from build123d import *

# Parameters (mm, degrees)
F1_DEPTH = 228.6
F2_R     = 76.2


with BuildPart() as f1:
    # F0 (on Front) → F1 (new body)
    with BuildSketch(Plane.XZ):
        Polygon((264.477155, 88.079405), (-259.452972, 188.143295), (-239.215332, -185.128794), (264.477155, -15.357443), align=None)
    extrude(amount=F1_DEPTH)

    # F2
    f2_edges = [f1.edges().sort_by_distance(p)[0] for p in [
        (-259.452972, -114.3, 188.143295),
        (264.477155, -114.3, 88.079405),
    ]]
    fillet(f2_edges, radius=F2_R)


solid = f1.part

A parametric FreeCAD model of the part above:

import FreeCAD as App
import Part
import Sketcher
from FreeCAD import Vector
Q = App.Units.Quantity


def edges_at(feature, points):
    """Names of the edges that pass closest to the given points."""
    edges = feature.Shape.Edges
    near = lambda p: min(range(len(edges)), key=lambda i: edges[i].distToShape(Part.Vertex(*p))[0])
    return sorted({f"Edge{near(p) + 1}" for p in points})


def add_polygon(sketch, points):
    """Adds a closed chain of lines whose ends are joined by coincident constraints."""
    first, n = sketch.GeometryCount, len(points)
    for a, b in zip(points, points[1:] + points[:1]):
        sketch.addGeometry(Part.LineSegment(App.Vector(*a, 0), App.Vector(*b, 0)), False)
    for i in range(n):
        sketch.addConstraint(Sketcher.Constraint("Coincident", first + i, 2, first + (i + 1) % n, 1))

doc = App.newDocument("Part")
body = doc.addObject("PartDesign::Body", "Body")

sketch1 = doc.addObject("Sketcher::SketchObject", "Sketch")
body.addObject(sketch1)
sketch1.AttachmentSupport = (doc.XZ_Plane, [""])
sketch1.MapMode = "FlatFace"
add_polygon(sketch1, [(264.477155, 88.079405), (-259.452972, 188.143295), (-239.215332, -185.128794), (264.477155, -15.357443)])
sketch1.addConstraint(Sketcher.Constraint("Vertical", 3))
sketch1.addConstraint(Sketcher.Constraint("Distance", 0, Q("21 in")))
sketch1.addConstraint(Sketcher.Constraint("DistanceY", 1, 2, 3, 2, 273.208199))
sketch1.addConstraint(Sketcher.Constraint("DistanceY", 3, 1, 3, 2, 103.436848))
sketch1.addConstraint(Sketcher.Constraint("DistanceX", 0, 2, -1, 1, 259.452972))
sketch1.addConstraint(Sketcher.Constraint("DistanceX", 1, 2, -1, 1, 239.215332))
sketch1.addConstraint(Sketcher.Constraint("DistanceY", 1, 2, 0, 2, 373.272089))
sketch1.addConstraint(Sketcher.Constraint("DistanceY", -1, 1, 0, 2, 188.143295))
pad1 = doc.addObject("PartDesign::Pad", "Pad")
body.addObject(pad1)
pad1.Profile = sketch1
pad1.Length = Q("9 in")
doc.recompute()

fillet = doc.addObject("PartDesign::Fillet", "Fillet")
body.addObject(fillet)
fillet.Base = (pad1, edges_at(pad1, [(-259.453, -114.3, 188.143), (264.477, -114.3, 88.079)]))
fillet.Radius = Q("3 in")

doc.recompute()
